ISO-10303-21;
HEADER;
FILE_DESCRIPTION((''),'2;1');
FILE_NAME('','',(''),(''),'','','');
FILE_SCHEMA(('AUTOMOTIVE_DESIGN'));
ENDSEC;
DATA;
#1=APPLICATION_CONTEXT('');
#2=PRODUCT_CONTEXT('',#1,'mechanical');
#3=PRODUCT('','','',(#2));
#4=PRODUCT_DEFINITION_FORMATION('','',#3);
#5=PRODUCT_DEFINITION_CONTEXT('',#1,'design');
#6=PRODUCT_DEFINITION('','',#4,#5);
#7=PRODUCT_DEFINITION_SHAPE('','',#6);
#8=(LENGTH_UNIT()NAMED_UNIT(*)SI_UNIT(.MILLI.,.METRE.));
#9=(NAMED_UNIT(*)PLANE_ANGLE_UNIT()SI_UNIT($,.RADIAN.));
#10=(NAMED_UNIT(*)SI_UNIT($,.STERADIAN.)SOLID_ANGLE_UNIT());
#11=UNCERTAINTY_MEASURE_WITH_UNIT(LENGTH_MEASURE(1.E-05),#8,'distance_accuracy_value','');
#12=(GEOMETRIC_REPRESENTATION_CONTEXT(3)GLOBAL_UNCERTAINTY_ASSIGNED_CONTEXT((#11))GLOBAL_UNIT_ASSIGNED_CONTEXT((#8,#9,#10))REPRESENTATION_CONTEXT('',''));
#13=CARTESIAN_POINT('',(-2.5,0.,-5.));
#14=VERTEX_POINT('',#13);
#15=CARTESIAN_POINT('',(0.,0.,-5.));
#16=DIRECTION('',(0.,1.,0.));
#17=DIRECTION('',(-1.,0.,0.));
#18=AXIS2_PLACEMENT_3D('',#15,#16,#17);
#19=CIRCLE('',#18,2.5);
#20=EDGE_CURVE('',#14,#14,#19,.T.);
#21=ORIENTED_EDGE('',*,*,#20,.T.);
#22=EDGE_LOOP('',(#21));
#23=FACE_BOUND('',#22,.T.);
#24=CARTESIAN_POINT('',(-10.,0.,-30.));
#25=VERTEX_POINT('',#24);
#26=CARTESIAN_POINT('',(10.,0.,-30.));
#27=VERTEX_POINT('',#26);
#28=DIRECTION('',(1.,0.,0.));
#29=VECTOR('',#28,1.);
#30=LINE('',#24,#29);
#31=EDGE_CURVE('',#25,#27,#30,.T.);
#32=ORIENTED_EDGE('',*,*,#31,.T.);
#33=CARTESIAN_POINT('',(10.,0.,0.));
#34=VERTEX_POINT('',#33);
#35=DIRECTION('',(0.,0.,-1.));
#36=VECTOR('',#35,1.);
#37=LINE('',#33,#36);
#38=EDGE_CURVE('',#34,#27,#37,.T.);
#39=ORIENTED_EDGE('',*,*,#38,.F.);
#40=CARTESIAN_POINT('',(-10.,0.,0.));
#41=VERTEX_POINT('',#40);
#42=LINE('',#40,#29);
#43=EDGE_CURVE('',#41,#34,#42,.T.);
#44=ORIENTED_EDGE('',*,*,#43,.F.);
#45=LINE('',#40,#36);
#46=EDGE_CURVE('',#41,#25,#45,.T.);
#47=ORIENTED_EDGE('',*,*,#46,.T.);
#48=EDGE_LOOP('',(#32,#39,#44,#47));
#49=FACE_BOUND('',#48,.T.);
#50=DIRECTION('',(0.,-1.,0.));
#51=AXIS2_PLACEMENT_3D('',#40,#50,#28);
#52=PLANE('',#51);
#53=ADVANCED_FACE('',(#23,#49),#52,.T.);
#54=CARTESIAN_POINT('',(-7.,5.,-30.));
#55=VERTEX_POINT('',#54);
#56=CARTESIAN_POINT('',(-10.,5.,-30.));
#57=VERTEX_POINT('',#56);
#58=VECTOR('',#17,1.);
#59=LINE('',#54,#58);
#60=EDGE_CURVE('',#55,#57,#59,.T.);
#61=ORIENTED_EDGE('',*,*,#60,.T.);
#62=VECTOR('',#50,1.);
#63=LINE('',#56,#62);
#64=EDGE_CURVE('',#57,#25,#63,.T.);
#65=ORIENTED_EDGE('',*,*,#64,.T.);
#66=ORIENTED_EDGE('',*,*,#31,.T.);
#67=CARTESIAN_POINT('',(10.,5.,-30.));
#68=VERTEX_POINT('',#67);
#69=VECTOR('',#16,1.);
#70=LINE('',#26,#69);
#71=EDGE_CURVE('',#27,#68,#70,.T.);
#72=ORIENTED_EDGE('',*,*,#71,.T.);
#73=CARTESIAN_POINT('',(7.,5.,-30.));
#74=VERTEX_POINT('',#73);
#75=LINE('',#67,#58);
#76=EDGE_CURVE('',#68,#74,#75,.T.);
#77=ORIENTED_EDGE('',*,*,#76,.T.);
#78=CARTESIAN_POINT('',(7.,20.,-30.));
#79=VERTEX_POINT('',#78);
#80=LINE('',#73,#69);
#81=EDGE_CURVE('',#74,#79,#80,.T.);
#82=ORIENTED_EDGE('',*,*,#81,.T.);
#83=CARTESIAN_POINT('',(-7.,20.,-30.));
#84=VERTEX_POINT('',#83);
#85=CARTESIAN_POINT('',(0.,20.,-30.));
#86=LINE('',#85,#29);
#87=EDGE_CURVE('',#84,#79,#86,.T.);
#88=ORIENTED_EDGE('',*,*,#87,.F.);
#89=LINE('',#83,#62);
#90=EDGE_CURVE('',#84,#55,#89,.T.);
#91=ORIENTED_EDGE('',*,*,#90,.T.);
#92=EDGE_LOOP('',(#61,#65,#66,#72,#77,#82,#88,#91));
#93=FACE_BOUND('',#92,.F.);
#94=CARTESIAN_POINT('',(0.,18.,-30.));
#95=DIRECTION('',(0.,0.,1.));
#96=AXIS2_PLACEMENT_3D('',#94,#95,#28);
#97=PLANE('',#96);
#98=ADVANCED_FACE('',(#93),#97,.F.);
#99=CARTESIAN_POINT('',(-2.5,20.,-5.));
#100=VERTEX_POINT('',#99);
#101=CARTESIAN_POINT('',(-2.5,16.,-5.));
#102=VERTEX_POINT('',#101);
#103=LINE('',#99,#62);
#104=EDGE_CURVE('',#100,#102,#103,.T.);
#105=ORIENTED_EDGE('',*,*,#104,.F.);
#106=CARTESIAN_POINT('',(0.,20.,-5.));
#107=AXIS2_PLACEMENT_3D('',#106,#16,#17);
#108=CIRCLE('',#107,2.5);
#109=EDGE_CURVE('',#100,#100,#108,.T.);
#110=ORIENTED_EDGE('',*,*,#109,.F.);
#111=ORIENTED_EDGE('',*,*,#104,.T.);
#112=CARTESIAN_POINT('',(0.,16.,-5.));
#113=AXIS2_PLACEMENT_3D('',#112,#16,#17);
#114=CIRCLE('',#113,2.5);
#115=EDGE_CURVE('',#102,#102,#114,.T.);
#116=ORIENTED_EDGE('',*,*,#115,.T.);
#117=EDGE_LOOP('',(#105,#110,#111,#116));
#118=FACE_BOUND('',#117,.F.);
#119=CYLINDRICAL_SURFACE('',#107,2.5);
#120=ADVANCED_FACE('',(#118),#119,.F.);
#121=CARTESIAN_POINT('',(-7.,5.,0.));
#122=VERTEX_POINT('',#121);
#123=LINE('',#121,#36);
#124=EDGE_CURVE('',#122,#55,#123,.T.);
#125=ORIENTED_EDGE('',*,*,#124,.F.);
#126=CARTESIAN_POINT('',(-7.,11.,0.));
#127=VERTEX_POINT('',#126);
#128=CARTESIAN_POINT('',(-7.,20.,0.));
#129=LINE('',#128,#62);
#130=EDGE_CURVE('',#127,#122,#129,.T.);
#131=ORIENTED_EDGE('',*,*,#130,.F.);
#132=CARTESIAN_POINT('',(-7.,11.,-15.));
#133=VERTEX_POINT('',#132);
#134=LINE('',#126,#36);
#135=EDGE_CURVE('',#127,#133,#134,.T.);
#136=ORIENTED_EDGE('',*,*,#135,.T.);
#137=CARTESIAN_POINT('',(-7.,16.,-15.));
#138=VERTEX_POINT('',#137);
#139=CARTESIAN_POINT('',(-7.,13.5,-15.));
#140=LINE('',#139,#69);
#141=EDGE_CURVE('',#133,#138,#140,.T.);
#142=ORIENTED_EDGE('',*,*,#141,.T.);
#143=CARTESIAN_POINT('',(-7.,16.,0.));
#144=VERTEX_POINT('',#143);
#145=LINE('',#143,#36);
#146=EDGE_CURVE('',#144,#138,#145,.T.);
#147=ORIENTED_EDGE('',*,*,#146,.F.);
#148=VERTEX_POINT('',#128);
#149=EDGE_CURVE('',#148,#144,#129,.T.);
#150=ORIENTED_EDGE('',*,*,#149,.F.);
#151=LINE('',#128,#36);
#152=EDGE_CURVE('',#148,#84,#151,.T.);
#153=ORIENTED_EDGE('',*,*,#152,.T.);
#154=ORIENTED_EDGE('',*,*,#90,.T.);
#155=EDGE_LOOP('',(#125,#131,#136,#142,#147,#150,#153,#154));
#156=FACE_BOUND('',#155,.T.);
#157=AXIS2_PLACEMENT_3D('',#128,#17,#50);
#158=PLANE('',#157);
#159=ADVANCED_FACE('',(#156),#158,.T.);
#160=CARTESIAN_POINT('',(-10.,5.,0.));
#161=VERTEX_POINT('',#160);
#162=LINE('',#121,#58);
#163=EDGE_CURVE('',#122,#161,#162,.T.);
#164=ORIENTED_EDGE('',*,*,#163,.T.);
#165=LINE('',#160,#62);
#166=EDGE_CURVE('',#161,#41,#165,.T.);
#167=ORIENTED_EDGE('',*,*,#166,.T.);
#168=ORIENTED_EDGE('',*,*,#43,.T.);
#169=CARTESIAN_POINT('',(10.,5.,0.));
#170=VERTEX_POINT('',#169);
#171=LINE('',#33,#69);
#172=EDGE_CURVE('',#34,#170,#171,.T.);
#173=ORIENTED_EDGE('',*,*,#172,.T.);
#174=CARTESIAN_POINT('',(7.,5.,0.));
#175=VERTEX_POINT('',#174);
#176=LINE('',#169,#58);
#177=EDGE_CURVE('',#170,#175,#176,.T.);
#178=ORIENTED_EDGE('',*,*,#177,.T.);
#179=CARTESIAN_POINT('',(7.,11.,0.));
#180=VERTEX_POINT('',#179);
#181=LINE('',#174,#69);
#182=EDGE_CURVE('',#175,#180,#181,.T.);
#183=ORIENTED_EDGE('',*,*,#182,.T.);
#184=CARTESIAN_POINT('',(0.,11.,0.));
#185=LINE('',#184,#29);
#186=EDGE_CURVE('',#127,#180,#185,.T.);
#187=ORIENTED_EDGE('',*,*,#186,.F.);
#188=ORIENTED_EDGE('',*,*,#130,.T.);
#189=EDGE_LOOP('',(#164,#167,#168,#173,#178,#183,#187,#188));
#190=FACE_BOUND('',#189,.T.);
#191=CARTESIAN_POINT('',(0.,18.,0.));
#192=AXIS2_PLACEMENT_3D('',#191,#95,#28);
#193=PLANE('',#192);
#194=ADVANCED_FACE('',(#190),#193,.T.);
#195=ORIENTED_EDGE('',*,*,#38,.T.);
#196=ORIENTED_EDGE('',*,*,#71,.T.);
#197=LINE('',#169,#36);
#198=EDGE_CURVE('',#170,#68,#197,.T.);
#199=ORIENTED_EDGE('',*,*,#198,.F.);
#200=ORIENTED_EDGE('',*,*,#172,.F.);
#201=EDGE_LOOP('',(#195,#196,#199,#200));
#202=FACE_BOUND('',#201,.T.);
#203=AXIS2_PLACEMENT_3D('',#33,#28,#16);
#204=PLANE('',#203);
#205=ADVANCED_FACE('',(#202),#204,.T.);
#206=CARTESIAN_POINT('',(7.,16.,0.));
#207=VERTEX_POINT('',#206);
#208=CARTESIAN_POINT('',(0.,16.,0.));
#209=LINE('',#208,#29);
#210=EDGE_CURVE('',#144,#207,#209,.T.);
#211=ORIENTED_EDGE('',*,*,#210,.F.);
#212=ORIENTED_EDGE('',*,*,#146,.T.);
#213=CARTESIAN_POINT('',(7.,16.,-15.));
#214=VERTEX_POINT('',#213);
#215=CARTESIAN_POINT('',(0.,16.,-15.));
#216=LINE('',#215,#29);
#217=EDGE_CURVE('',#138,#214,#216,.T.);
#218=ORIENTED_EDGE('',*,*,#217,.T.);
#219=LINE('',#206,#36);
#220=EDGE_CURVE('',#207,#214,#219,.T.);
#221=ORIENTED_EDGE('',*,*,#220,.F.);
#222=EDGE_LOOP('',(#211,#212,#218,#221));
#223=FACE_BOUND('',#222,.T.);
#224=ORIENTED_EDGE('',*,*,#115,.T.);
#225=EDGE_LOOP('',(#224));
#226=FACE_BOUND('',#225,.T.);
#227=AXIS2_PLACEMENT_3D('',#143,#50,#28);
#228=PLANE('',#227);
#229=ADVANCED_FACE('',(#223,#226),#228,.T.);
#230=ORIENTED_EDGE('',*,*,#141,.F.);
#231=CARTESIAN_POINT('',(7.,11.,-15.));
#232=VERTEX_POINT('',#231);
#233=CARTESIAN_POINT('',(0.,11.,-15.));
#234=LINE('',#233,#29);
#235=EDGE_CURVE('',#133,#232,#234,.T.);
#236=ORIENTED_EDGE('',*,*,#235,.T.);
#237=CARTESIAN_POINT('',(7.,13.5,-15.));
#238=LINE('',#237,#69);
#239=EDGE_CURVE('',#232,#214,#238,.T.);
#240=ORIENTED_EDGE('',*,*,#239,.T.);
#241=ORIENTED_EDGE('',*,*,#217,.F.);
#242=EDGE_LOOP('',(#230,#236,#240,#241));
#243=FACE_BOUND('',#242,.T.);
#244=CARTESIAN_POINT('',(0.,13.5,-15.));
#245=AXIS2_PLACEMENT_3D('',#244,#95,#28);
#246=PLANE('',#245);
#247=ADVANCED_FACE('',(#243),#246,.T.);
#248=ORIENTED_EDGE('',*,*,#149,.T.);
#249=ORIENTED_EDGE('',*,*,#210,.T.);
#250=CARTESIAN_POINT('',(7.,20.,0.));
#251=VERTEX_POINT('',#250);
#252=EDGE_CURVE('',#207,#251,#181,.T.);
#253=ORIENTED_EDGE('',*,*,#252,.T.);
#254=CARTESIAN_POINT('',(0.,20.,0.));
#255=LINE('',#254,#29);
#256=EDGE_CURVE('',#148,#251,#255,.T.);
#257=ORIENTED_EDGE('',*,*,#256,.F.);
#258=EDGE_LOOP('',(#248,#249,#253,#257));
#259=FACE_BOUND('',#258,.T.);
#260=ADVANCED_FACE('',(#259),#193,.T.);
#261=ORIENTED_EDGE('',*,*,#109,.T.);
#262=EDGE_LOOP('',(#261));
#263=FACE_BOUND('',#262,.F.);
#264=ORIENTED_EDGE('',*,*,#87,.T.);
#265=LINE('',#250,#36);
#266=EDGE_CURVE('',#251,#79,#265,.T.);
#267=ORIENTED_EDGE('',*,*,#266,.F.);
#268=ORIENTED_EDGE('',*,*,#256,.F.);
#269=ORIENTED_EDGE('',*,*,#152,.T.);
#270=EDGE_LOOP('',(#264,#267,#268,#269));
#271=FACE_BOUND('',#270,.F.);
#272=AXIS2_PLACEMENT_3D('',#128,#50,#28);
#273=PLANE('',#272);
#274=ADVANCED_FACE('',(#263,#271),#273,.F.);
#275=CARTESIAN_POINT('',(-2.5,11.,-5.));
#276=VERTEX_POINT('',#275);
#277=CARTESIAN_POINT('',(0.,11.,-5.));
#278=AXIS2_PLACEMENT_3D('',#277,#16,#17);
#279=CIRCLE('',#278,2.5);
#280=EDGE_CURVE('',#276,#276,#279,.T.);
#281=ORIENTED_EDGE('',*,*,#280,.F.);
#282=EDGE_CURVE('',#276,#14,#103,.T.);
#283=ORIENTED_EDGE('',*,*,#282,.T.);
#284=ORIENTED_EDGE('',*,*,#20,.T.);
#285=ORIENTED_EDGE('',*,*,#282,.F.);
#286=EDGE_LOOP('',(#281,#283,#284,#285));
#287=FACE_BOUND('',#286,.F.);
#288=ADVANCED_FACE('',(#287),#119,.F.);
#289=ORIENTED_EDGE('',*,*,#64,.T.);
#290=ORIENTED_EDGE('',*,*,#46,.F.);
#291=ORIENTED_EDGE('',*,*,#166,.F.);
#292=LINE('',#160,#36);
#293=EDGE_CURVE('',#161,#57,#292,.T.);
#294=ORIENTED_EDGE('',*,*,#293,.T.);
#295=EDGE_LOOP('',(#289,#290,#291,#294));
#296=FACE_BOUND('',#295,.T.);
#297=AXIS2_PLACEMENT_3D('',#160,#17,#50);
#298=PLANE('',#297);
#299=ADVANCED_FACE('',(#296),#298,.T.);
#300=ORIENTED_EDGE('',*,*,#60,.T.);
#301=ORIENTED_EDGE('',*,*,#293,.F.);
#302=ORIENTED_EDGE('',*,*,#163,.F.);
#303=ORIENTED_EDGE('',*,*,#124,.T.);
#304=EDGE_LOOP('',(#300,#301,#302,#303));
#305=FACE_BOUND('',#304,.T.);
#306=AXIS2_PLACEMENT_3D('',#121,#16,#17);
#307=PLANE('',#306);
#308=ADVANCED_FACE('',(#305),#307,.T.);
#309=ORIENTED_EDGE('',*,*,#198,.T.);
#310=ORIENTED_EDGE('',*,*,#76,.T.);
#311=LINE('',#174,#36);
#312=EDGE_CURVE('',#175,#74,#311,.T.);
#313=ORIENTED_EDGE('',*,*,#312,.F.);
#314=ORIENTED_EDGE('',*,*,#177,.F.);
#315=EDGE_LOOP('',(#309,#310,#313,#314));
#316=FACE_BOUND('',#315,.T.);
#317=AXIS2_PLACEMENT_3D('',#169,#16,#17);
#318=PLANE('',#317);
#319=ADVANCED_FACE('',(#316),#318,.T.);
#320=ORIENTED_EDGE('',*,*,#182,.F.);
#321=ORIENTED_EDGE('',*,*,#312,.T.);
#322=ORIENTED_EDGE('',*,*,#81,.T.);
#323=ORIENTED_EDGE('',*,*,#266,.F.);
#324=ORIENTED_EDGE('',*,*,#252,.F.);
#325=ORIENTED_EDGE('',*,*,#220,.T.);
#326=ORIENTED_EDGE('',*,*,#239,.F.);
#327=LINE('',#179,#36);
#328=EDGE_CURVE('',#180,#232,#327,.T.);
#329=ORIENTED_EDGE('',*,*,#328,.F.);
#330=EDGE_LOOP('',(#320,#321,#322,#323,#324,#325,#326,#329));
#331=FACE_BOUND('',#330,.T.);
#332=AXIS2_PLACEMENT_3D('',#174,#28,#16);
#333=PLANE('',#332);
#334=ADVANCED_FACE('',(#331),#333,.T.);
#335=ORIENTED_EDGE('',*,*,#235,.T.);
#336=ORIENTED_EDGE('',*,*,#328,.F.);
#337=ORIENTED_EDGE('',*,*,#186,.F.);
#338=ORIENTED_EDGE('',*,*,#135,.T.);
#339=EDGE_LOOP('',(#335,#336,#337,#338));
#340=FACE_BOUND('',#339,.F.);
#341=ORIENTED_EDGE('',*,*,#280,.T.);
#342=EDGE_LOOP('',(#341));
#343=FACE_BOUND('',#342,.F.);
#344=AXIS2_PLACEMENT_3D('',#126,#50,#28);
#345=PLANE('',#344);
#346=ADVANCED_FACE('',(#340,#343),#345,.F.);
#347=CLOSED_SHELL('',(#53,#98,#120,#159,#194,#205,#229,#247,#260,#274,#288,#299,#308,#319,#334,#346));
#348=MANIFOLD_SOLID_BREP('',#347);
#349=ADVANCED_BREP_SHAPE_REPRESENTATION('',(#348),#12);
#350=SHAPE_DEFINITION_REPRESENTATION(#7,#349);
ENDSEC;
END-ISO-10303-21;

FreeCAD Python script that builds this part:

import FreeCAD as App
import Part
import Sketcher

V = App.Vector

doc = App.newDocument("Part")
body = doc.addObject("PartDesign::Body", "Body")

# Sketch on XY plane
sketch1 = body.newObject("Sketcher::SketchObject", "Sketch")
sketch1.AttachmentSupport = (doc.getObject("XY_Plane"), [""])
sketch1.MapMode = "FlatFace"
sketch1.addGeometry([
    Part.LineSegment(V(-7, 20, 0), V(-7, 5, 0)),  # 0
    Part.LineSegment(V(-7, 5, 0), V(-10, 5, 0)),  # 1
    Part.LineSegment(V(-10, 5, 0), V(-10, 0, 0)),  # 2
    Part.LineSegment(V(-10, 0, 0), V(10, 0, 0)),  # 3
    Part.LineSegment(V(10, 0, 0), V(10, 5, 0)),  # 4
    Part.LineSegment(V(10, 5, 0), V(7, 5, 0)),  # 5
    Part.LineSegment(V(7, 5, 0), V(7, 20, 0)),  # 6
    Part.LineSegment(V(7, 20, 0), V(-7, 20, 0)),  # 7
], False)
sketch1.addConstraint([
    Sketcher.Constraint("Coincident", 0, 2, 1, 1),
    Sketcher.Constraint("Coincident", 1, 2, 2, 1),
    Sketcher.Constraint("Coincident", 2, 2, 3, 1),
    Sketcher.Constraint("Coincident", 3, 2, 4, 1),
    Sketcher.Constraint("Coincident", 4, 2, 5, 1),
    Sketcher.Constraint("Coincident", 5, 2, 6, 1),
    Sketcher.Constraint("Coincident", 6, 2, 7, 1),
    Sketcher.Constraint("Coincident", 7, 2, 0, 1),
    Sketcher.Constraint("Vertical", 0),
    Sketcher.Constraint("Horizontal", 1),
    Sketcher.Constraint("Vertical", 2),
    Sketcher.Constraint("Horizontal", 3),
    Sketcher.Constraint("Vertical", 4),
    Sketcher.Constraint("Horizontal", 5),
    Sketcher.Constraint("Vertical", 6),
    Sketcher.Constraint("Horizontal", 7),
    Sketcher.Constraint("Symmetric", 2, 2, 3, 2, -1, 1),
    Sketcher.Constraint("Symmetric", 0, 2, 5, 2, -2),
    Sketcher.Constraint("DistanceX", 1, 2, 1, 1, 3.0),
    Sketcher.Constraint("DistanceX", 3, 1, 3, 2, 20.0),
    Sketcher.Constraint("DistanceY", 0, 2, 0, 1, 15.0),
    Sketcher.Constraint("DistanceY", 2, 2, 2, 1, 5.0),
])
pad1 = body.newObject("PartDesign::Pad", "Pad")
pad1.Profile = sketch1
pad1.Length = 30
pad1.Reversed = True

# Sketch on XY plane
sketch2 = body.newObject("Sketcher::SketchObject", "Sketch001")
sketch2.AttachmentSupport = (doc.getObject("XY_Plane"), [""])
sketch2.MapMode = "FlatFace"
sketch2.addGeometry([
    Part.LineSegment(V(-7, 16, 0), V(-7, 11, 0)),
    Part.LineSegment(V(-7, 11, 0), V(7, 11, 0)),
    Part.LineSegment(V(7, 11, 0), V(7, 16, 0)),
    Part.LineSegment(V(7, 16, 0), V(-7, 16, 0)),
], False)
sketch2.addConstraint([
    Sketcher.Constraint("Coincident", 0, 2, 1, 1),
    Sketcher.Constraint("Coincident", 1, 2, 2, 1),
    Sketcher.Constraint("Coincident", 2, 2, 3, 1),
    Sketcher.Constraint("Coincident", 3, 2, 0, 1),
    Sketcher.Constraint("Vertical", 0),
    Sketcher.Constraint("Horizontal", 1),
    Sketcher.Constraint("Vertical", 2),
    Sketcher.Constraint("Horizontal", 3),
    Sketcher.Constraint("DistanceX", 1, 1, 1, 2, 14.0),
    Sketcher.Constraint("DistanceY", 0, 2, 0, 1, 5.0),
    Sketcher.Constraint("DistanceX", 0, 2, -1, 1, 7.0),
    Sketcher.Constraint("DistanceY", -1, 1, 0, 2, 11.0),
])
pocket1 = body.newObject("PartDesign::Pocket", "Pocket")
pocket1.Profile = sketch2
pocket1.Length = 15

# Sketch on XZ plane
sketch3 = body.newObject("Sketcher::SketchObject", "Sketch002")
sketch3.AttachmentSupport = (doc.getObject("XZ_Plane"), [""])
sketch3.MapMode = "FlatFace"
sketch3.AttachmentOffset = App.Placement(V(0, 0, -20), App.Rotation())
sketch3.addGeometry(Part.Circle(V(0, -5, 0), V(0, 0, 1), 2.5), False)
sketch3.addConstraint([
    Sketcher.Constraint("PointOnObject", 0, 3, -2),
    Sketcher.Constraint("Diameter", 0, 5.0),
    Sketcher.Constraint("DistanceY", 0, 3, -1, 1, 5.0),
])
pocket2 = body.newObject("PartDesign::Pocket", "Pocket001")
pocket2.Profile = sketch3
pocket2.Length = 25
pocket2.Reversed = True

doc.recompute()
